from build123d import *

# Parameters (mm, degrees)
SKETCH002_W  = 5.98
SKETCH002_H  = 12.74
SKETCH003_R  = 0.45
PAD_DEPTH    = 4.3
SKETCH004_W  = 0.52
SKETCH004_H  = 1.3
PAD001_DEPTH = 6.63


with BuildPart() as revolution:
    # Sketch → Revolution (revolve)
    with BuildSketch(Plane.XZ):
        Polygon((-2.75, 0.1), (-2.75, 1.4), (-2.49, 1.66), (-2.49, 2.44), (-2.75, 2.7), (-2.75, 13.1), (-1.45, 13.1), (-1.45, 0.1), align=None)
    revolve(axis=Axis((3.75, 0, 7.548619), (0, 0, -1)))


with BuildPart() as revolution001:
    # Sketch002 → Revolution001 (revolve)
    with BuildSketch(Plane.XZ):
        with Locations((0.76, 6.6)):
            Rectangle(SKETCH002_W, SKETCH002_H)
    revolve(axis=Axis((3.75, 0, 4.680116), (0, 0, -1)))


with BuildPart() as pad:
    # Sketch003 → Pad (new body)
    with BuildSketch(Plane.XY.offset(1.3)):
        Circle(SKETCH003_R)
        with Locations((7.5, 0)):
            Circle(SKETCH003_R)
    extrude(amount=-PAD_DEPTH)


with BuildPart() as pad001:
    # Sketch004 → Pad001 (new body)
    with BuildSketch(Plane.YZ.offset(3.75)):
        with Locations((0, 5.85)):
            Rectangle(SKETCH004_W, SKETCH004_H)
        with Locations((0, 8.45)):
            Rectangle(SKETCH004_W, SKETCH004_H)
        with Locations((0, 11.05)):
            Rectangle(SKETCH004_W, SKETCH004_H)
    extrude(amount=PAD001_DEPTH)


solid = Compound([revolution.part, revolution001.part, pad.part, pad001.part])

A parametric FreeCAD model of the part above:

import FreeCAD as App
import Part
import Sketcher


def add_polygon(sketch, points):
    """Adds a closed chain of lines whose ends are joined by coincident constraints."""
    first, n = sketch.GeometryCount, len(points)
    for a, b in zip(points, points[1:] + points[:1]):
        sketch.addGeometry(Part.LineSegment(App.Vector(*a, 0), App.Vector(*b, 0)), False)
    for i in range(n):
        sketch.addConstraint(Sketcher.Constraint("Coincident", first + i, 2, first + (i + 1) % n, 1))

doc = App.newDocument("Part")
body = doc.addObject("PartDesign::Body", "Body")

sketch1 = doc.addObject("Sketcher::SketchObject", "Sketch")
body.addObject(sketch1)
sketch1.AttachmentSupport = (doc.XZ_Plane, [""])
sketch1.MapMode = "FlatFace"
add_polygon(sketch1, [(-2.75, 1.4), (-2.75, 0.1), (-1.45, 0.1), (-1.45, 13.1), (-2.75, 13.1), (-2.75, 2.7), (-2.49, 2.44), (-2.49, 1.66)])
sketch1.addGeometry(Part.LineSegment(App.Vector(3.75, 13.1, 0), App.Vector(3.75, 0.1, 0)), True)
sketch1.addConstraint(Sketcher.Constraint("Vertical", 0))
sketch1.addConstraint(Sketcher.Constraint("Horizontal", 1))
sketch1.addConstraint(Sketcher.Constraint("Vertical", 2))
sketch1.addConstraint(Sketcher.Constraint("Horizontal", 3))
sketch1.addConstraint(Sketcher.Constraint("Vertical", 4))
sketch1.addConstraint(Sketcher.Constraint("Vertical", 6))
sketch1.addConstraint(Sketcher.Constraint("Vertical", 8))
sketch1.addConstraint(Sketcher.Constraint("Perpendicular", 5, 7))
sketch1.addConstraint(Sketcher.Constraint("Horizontal", 3, 2, 8, 1))
sketch1.addConstraint(Sketcher.Constraint("Horizontal", 1, 2, 8, 2))
sketch1.addConstraint(Sketcher.Constraint("Vertical", 0, 2, 3, 2))
sketch1.addConstraint(Sketcher.Constraint("Equal", 3, 0))
sketch1.addConstraint(Sketcher.Constraint("Equal", 5, 7))
sketch1.addConstraint(Sketcher.Constraint("DistanceY", 2, 1, 2, 2, 13.0))
sketch1.addConstraint(Sketcher.Constraint("DistanceX", 1, 1, 1, 2, 1.3))
sketch1.addConstraint(Sketcher.Constraint("DistanceY", 4, 2, 4, 1, 10.4))
sketch1.addConstraint(Sketcher.Constraint("DistanceY", 6, 2, 6, 1, 0.78))
sketch1.addConstraint(Sketcher.Constraint("DistanceY", -1, 1, 0, 2, 0.1))
sketch1.addConstraint(Sketcher.Constraint("DistanceX", 2, 2, 8, 1, 5.2))
sketch1.addConstraint(Sketcher.Constraint("DistanceX", 0, 2, -1, 1, 2.75))
revolution = doc.addObject("PartDesign::Revolution", "Revolution")
body.addObject(revolution)
revolution.Profile = sketch1
revolution.ReferenceAxis = (sketch1, ["Axis0"])
revolution.Angle = 360
body2 = doc.addObject("PartDesign::Body", "Body001")

sketch2 = doc.addObject("Sketcher::SketchObject", "Sketch001")
body2.addObject(sketch2)
sketch2.AttachmentSupport = (doc.getObject("XZ_Plane001"), [""])
sketch2.MapMode = "FlatFace"
add_polygon(sketch2, [(-2, 13), (-2, 0), (4, 0), (4, 13)])
sketch2.addGeometry(Part.LineSegment(App.Vector(4, 13, 0), App.Vector(4, 0, 0)), True)
sketch2.addConstraint(Sketcher.Constraint("Vertical", 0))
sketch2.addConstraint(Sketcher.Constraint("Horizontal", 1))
sketch2.addConstraint(Sketcher.Constraint("Vertical", 2))
sketch2.addConstraint(Sketcher.Constraint("Horizontal", 3))
sketch2.addConstraint(Sketcher.Constraint("Vertical", 4))
sketch2.addConstraint(Sketcher.Constraint("Coincident", 4, 1, 2, 2))
sketch2.addConstraint(Sketcher.Constraint("Horizontal", 0, 2, 4, 2))
sketch2.addConstraint(Sketcher.Constraint("DistanceX", 1, 1, 1, 2, 5.98))
sketch2.addConstraint(Sketcher.Constraint("DistanceY", 0, 2, 0, 1, 12.74))
sketch2.addConstraint(Sketcher.Constraint("DistanceX", 0, 2, -1, 1, 2.23))
sketch2.addConstraint(Sketcher.Constraint("DistanceY", -1, 1, 0, 2, 0.23))
revolution2 = doc.addObject("PartDesign::Revolution", "Revolution001")
body2.addObject(revolution2)
revolution2.Profile = sketch2
revolution2.ReferenceAxis = (sketch2, ["Axis0"])
revolution2.Angle = 360
body3 = doc.addObject("PartDesign::Body", "Body002")
body3.AllowCompound = True

sketch3 = doc.addObject("Sketcher::SketchObject", "Sketch002")
body3.addObject(sketch3)
sketch3.AttachmentSupport = (doc.getObject("XY_Plane002"), [""])
sketch3.MapMode = "FlatFace"
sketch3.AttachmentOffset = App.Placement(App.Vector(0, 0, 1.3), App.Rotation())
sketch3.addGeometry(Part.Circle(App.Vector(0, 0, 0), App.Vector(0, 0, 1), 0.45), False)
sketch3.addGeometry(Part.Circle(App.Vector(7.5, 0, 0), App.Vector(0, 0, 1), 0.45), False)
sketch3.addConstraint(Sketcher.Constraint("Coincident", 0, 3, -1, 1))
sketch3.addConstraint(Sketcher.Constraint("Equal", 0, 1))
sketch3.addConstraint(Sketcher.Constraint("PointOnObject", 1, 3, -1))
sketch3.addConstraint(Sketcher.Constraint("Diameter", 0, 0.9))
sketch3.addConstraint(Sketcher.Constraint("DistanceX", -1, 1, 1, 3, 7.5))
pad1 = doc.addObject("PartDesign::Pad", "Pad")
body3.addObject(pad1)
pad1.Profile = sketch3
pad1.Length = 4.3
pad1.Reversed = True
body4 = doc.addObject("PartDesign::Body", "Body003")
body4.AllowCompound = True

sketch4 = doc.addObject("Sketcher::SketchObject", "Sketch003")
body4.addObject(sketch4)
sketch4.AttachmentSupport = (doc.getObject("YZ_Plane003"), [""])
sketch4.MapMode = "FlatFace"
sketch4.AttachmentOffset = App.Placement(App.Vector(0, 0, 3.75), App.Rotation())
add_polygon(sketch4, [(-0.3, 6.5), (-0.3, 5.2), (0.3, 5.2), (0.3, 6.5)])
add_polygon(sketch4, [(-0.3, 9.1), (-0.3, 7.8), (0.3, 7.8), (0.3, 9.1)])
add_polygon(sketch4, [(-0.3, 11.7), (-0.3, 10.4), (0.3, 10.4), (0.3, 11.7)])
sketch4.addConstraint(Sketcher.Constraint("Vertical", 0))
sketch4.addConstraint(Sketcher.Constraint("Horizontal", 1))
sketch4.addConstraint(Sketcher.Constraint("Vertical", 2))
sketch4.addConstraint(Sketcher.Constraint("Horizontal", 3))
sketch4.addConstraint(Sketcher.Constraint("Vertical", 4))
sketch4.addConstraint(Sketcher.Constraint("Horizontal", 5))
sketch4.addConstraint(Sketcher.Constraint("Vertical", 6))
sketch4.addConstraint(Sketcher.Constraint("Horizontal", 7))
sketch4.addConstraint(Sketcher.Constraint("Vertical", 8))
sketch4.addConstraint(Sketcher.Constraint("Horizontal", 9))
sketch4.addConstraint(Sketcher.Constraint("Vertical", 10))
sketch4.addConstraint(Sketcher.Constraint("Horizontal", 11))
sketch4.addConstraint(Sketcher.Constraint("Vertical", 3, 2, 4, 2))
sketch4.addConstraint(Sketcher.Constraint("Vertical", 2, 2, 5, 2))
sketch4.addConstraint(Sketcher.Constraint("Vertical", 7, 2, 8, 2))
sketch4.addConstraint(Sketcher.Constraint("Vertical", 6, 2, 9, 2))
sketch4.addConstraint(Sketcher.Constraint("Equal", 2, 4))
sketch4.addConstraint(Sketcher.Constraint("Equal", 6, 8))
sketch4.addConstraint(Sketcher.Constraint("DistanceY", 0, 2, 0, 1, 1.3))
sketch4.addConstraint(Sketcher.Constraint("DistanceX", 1, 1, 1, 2, 0.52))
sketch4.addConstraint(Sketcher.Constraint("DistanceY", -1, 1, 0, 2, 5.2))
sketch4.addConstraint(Sketcher.Constraint("DistanceY", -1, 1, 4, 2, 7.8))
sketch4.addConstraint(Sketcher.Constraint("DistanceY", -1, 1, 8, 2, 10.4))
sketch4.addConstraint(Sketcher.Constraint("DistanceX", 0, 2, -1, 1, 0.26))
pad2 = doc.addObject("PartDesign::Pad", "Pad001")
body4.addObject(pad2)
pad2.Profile = sketch4
pad2.Length = 6.63

doc.recompute()
